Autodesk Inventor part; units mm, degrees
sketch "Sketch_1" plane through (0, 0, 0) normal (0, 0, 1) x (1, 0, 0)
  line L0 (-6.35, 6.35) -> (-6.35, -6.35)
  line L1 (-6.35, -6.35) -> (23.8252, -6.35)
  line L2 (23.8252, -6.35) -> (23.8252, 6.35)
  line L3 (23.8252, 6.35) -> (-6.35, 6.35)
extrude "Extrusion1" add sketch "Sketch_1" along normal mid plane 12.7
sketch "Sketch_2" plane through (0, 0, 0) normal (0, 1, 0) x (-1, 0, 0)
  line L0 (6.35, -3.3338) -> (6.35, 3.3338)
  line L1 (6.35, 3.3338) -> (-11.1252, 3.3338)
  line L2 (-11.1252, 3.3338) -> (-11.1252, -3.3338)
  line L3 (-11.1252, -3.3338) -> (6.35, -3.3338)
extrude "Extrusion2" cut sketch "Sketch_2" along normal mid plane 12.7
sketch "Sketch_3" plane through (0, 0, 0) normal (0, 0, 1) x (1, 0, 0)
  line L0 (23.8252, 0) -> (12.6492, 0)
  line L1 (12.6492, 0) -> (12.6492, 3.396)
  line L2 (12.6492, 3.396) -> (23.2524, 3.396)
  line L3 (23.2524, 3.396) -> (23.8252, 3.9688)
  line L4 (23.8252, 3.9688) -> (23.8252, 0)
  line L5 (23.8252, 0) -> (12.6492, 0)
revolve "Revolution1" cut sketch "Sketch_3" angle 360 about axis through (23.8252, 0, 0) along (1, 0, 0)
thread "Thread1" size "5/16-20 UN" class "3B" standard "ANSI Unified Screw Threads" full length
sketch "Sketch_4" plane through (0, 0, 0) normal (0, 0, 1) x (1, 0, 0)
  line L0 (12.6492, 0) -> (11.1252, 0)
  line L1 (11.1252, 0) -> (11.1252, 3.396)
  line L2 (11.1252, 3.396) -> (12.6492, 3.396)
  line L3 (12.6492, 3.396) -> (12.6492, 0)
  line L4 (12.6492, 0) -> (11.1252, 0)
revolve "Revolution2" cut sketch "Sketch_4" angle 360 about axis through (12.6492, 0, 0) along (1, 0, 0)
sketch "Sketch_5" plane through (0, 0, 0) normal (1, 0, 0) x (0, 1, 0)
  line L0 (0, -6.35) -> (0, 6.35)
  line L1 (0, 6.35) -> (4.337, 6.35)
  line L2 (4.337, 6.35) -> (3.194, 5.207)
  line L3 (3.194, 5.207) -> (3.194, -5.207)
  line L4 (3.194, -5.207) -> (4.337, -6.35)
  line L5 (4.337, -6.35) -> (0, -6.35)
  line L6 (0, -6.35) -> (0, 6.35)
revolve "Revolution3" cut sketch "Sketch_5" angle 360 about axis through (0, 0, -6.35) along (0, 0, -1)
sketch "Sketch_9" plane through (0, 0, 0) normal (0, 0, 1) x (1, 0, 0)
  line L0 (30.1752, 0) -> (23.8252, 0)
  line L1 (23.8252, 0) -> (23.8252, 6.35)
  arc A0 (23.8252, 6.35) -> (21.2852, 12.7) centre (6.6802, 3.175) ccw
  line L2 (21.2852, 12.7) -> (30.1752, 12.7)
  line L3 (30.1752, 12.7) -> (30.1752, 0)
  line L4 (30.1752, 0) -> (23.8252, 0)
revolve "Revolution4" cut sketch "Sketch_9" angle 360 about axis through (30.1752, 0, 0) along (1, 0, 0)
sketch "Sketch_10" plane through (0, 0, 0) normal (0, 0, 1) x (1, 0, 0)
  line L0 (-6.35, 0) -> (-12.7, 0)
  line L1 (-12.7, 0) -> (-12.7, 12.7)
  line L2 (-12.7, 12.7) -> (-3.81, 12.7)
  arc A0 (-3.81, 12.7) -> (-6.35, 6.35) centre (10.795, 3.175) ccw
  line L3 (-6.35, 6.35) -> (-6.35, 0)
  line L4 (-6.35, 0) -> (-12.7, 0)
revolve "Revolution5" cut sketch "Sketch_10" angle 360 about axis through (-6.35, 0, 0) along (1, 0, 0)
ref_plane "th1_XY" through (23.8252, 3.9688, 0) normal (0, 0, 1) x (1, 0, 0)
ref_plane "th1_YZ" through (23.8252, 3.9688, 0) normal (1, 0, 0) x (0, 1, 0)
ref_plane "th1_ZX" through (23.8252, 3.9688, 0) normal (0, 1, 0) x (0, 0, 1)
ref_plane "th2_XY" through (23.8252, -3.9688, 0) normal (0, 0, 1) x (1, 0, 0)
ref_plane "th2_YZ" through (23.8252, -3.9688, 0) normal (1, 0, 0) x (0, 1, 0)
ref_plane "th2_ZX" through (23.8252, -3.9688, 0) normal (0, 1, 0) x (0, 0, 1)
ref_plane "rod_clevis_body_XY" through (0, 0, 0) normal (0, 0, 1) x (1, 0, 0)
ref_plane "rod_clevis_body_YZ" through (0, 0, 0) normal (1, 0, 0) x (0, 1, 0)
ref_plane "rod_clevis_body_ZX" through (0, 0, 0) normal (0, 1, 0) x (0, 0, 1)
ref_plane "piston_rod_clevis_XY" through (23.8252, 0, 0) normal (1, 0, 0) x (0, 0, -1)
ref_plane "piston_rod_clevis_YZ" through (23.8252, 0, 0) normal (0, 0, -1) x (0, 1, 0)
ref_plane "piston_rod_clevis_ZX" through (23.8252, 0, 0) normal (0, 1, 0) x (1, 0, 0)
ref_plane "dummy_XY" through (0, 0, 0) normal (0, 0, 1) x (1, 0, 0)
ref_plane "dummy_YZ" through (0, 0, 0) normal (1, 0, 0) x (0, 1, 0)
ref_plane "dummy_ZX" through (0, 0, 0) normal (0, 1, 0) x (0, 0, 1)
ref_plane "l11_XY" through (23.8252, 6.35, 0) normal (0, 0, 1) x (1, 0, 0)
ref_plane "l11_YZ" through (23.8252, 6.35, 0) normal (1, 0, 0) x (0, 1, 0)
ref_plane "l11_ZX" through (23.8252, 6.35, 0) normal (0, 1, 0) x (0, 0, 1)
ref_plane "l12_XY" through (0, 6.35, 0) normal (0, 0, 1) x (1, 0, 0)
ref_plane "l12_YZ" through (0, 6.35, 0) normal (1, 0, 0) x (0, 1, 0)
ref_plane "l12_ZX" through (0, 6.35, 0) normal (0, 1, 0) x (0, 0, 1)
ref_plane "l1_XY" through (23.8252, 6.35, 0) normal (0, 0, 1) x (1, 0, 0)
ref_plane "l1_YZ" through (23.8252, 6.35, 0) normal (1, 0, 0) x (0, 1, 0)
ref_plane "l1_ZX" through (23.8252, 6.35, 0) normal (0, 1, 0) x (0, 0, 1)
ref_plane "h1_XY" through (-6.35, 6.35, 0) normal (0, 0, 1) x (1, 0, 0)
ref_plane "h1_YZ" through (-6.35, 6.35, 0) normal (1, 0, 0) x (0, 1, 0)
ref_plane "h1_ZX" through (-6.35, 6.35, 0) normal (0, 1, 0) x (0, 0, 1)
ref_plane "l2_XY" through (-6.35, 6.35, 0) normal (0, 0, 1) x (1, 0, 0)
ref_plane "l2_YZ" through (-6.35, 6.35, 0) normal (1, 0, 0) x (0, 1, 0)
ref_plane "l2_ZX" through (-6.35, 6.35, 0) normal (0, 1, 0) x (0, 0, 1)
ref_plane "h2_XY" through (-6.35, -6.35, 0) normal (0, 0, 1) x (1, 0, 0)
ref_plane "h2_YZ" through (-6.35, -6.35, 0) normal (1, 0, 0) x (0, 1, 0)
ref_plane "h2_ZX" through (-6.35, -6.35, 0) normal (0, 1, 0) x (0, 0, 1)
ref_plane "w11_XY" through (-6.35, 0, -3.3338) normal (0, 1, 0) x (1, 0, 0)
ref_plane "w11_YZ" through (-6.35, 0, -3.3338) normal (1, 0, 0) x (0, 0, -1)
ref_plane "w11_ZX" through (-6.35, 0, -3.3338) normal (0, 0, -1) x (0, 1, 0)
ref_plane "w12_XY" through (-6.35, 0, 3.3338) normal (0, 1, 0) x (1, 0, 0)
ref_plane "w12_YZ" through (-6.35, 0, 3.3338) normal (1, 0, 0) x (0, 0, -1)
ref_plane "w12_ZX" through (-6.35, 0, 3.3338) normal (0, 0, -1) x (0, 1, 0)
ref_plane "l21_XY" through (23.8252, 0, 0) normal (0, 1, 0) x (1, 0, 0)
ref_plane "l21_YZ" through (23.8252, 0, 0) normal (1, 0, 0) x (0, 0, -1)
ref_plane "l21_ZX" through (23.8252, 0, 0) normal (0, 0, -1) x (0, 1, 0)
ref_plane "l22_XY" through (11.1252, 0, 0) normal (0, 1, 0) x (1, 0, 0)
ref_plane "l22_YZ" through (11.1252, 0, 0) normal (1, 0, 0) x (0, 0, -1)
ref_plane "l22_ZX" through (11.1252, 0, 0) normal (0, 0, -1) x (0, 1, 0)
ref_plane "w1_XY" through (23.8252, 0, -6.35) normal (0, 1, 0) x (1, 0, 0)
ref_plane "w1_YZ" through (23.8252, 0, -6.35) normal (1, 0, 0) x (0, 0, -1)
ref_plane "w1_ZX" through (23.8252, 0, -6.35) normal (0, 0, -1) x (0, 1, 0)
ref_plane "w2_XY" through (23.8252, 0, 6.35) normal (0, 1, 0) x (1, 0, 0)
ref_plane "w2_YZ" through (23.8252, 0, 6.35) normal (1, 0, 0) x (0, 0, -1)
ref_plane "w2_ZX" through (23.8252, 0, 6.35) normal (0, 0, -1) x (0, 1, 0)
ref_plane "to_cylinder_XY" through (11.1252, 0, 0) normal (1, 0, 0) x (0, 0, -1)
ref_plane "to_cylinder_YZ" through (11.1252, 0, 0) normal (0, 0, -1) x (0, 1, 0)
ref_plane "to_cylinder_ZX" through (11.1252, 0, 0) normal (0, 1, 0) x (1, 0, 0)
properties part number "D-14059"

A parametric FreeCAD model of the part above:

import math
import FreeCAD as App
import Part
import Sketcher
from FreeCAD import Vector
Q = App.Units.Quantity


def add_polygon(sketch, points):
    """Adds a closed chain of lines whose ends are joined by coincident constraints."""
    first, n = sketch.GeometryCount, len(points)
    for a, b in zip(points, points[1:] + points[:1]):
        sketch.addGeometry(Part.LineSegment(App.Vector(*a, 0), App.Vector(*b, 0)), False)
    for i in range(n):
        sketch.addConstraint(Sketcher.Constraint("Coincident", first + i, 2, first + (i + 1) % n, 1))

doc = App.newDocument("Part")
body = doc.addObject("PartDesign::Body", "Body")

# Sketch on XY plane
sketch1 = doc.addObject("Sketcher::SketchObject", "Sketch")
body.addObject(sketch1)
sketch1.AttachmentSupport = (doc.XY_Plane, [""])
sketch1.MapMode = "FlatFace"
add_polygon(sketch1, [(24, 6), (-6, 6), (-6, -6), (24, -6)])  # lines 0-3
sketch1.addConstraint(Sketcher.Constraint("Horizontal", 0))
sketch1.addConstraint(Sketcher.Constraint("Vertical", 1))
sketch1.addConstraint(Sketcher.Constraint("Horizontal", 2))
sketch1.addConstraint(Sketcher.Constraint("Vertical", 3))
sketch1.addConstraint(Sketcher.Constraint("DistanceY", 1, 2, 1, 1, Q("0.5 in")))
sketch1.addConstraint(Sketcher.Constraint("DistanceX", 0, 2, 0, 1, Q("1.188 in")))
sketch1.addConstraint(Sketcher.Constraint("DistanceX", 0, 2, -1, 1, Q("0.25 in")))
sketch1.addConstraint(Sketcher.Constraint("DistanceY", -1, 1, 0, 2, Q("0.25 in")))
pad1 = doc.addObject("PartDesign::Pad", "Pad")
body.addObject(pad1)
pad1.Profile = sketch1
pad1.Length = Q("0.5 in")
pad1.Midplane = True

# Sketch on XZ plane
sketch2 = doc.addObject("Sketcher::SketchObject", "Sketch001")
body.addObject(sketch2)
sketch2.AttachmentSupport = (doc.XZ_Plane, [""])
sketch2.MapMode = "FlatFace"
add_polygon(sketch2, [(11, -3), (-6, -3), (-6, 3), (11, 3)])  # lines 0-3
sketch2.addConstraint(Sketcher.Constraint("Horizontal", 0))
sketch2.addConstraint(Sketcher.Constraint("Vertical", 1))
sketch2.addConstraint(Sketcher.Constraint("Horizontal", 2))
sketch2.addConstraint(Sketcher.Constraint("Vertical", 3))
sketch2.addConstraint(Sketcher.Constraint("DistanceX", 0, 2, 0, 1, Q("0.688 in")))
sketch2.addConstraint(Sketcher.Constraint("DistanceX", 0, 2, -1, 1, Q("0.25 in")))
sketch2.addConstraint(Sketcher.Constraint("DistanceY", 1, 1, 1, 2, Q("0.2625 in")))
sketch2.addConstraint(Sketcher.Constraint("DistanceY", 0, 2, -1, 1, Q("3.3338 mm")))
pocket1 = doc.addObject("PartDesign::Pocket", "Pocket")
body.addObject(pocket1)
pocket1.Profile = sketch2
pocket1.Length = Q("0.5 in")
pocket1.Midplane = True

# Sketch on XY plane
sketch3 = doc.addObject("Sketcher::SketchObject", "Sketch002")
body.addObject(sketch3)
sketch3.AttachmentSupport = (doc.XY_Plane, [""])
sketch3.MapMode = "FlatFace"
add_polygon(sketch3, [(12.6, 0), (23.8, 0), (23.8, 4), (23.3, 3.4), (12.6, 3.4)])  # lines 0-4
sketch3.addConstraint(Sketcher.Constraint("Horizontal", 0))
sketch3.addConstraint(Sketcher.Constraint("Vertical", 1))
sketch3.addConstraint(Sketcher.Constraint("Horizontal", 3))
sketch3.addConstraint(Sketcher.Constraint("Vertical", 4))
sketch3.addConstraint(Sketcher.Constraint("PointOnObject", 0, 2, -1))
sketch3.addConstraint(Sketcher.Constraint("Angle", 2, Q("-135 deg")))
sketch3.addConstraint(Sketcher.Constraint("DistanceX", 0, 1, 0, 2, Q("0.44 in")))
sketch3.addConstraint(Sketcher.Constraint("DistanceY", 1, 1, 1, 2, Q("0.156252 in")))
sketch3.addConstraint(Sketcher.Constraint("DistanceY", 4, 2, 4, 1, Q("0.1337 in")))
sketch3.addConstraint(Sketcher.Constraint("DistanceX", -1, 1, 0, 2, Q("0.938 in")))
groove = doc.addObject("PartDesign::Groove", "Groove")
body.addObject(groove)
groove.Profile = sketch3
groove.ReferenceAxis = (sketch3, ["H_Axis"])
groove.Angle = 360

# Sketch on XY plane
sketch4 = doc.addObject("Sketcher::SketchObject", "Sketch003")
body.addObject(sketch4)
sketch4.AttachmentSupport = (doc.XY_Plane, [""])
sketch4.MapMode = "FlatFace"
add_polygon(sketch4, [(11.1, 0), (12.6, 0), (12.6, 3.4), (11.1, 3.4)])  # lines 0-3
sketch4.addConstraint(Sketcher.Constraint("Horizontal", 0))
sketch4.addConstraint(Sketcher.Constraint("Vertical", 1))
sketch4.addConstraint(Sketcher.Constraint("Horizontal", 2))
sketch4.addConstraint(Sketcher.Constraint("Vertical", 3))
sketch4.addConstraint(Sketcher.Constraint("PointOnObject", 0, 2, -1))
sketch4.addConstraint(Sketcher.Constraint("DistanceX", 0, 1, 0, 2, Q("0.06 in")))
sketch4.addConstraint(Sketcher.Constraint("DistanceY", 1, 1, 1, 2, Q("0.1337 in")))
sketch4.addConstraint(Sketcher.Constraint("DistanceX", -1, 1, 0, 2, Q("0.498 in")))
groove2 = doc.addObject("PartDesign::Groove", "Groove001")
body.addObject(groove2)
groove2.Profile = sketch4
groove2.ReferenceAxis = (sketch4, ["H_Axis"])
groove2.Angle = 360

# Sketch on YZ plane
sketch5 = doc.addObject("Sketcher::SketchObject", "Sketch004")
body.addObject(sketch5)
sketch5.AttachmentSupport = (doc.YZ_Plane, [""])
sketch5.MapMode = "FlatFace"
add_polygon(sketch5, [(0, 6.3), (0, -6.3), (4.3, -6.3), (3.2, -5.2), (3.2, 5.2), (4.3, 6.3)])  # lines 0-5
sketch5.addConstraint(Sketcher.Constraint("Vertical", 0))
sketch5.addConstraint(Sketcher.Constraint("Horizontal", 1))
sketch5.addConstraint(Sketcher.Constraint("Vertical", 3))
sketch5.addConstraint(Sketcher.Constraint("Horizontal", 5))
sketch5.addConstraint(Sketcher.Constraint("Symmetric", 0, 2, 5, 2, -1, 1))
sketch5.addConstraint(Sketcher.Constraint("Perpendicular", 2, 4))
sketch5.addConstraint(Sketcher.Constraint("Vertical", 1, 2, 4, 2))
sketch5.addConstraint(Sketcher.Constraint("Equal", 2, 4))
sketch5.addConstraint(Sketcher.Constraint("DistanceY", 0, 2, 0, 1, Q("0.5 in")))
sketch5.addConstraint(Sketcher.Constraint("DistanceY", 3, 1, 3, 2, Q("0.41 in")))
sketch5.addConstraint(Sketcher.Constraint("DistanceX", 1, 1, 1, 2, Q("4.337 mm")))
groove3 = doc.addObject("PartDesign::Groove", "Groove002")
body.addObject(groove3)
groove3.Profile = sketch5
groove3.ReferenceAxis = (sketch5, ["V_Axis"])
groove3.Angle = 360

# Sketch on XY plane
sketch6 = doc.addObject("Sketcher::SketchObject", "Sketch005")
body.addObject(sketch6)
sketch6.AttachmentSupport = (doc.XY_Plane, [""])
sketch6.MapMode = "FlatFace"
sketch6.addGeometry(Part.LineSegment(Vector(24, 0, 0), Vector(30, 0, 0)), False)
sketch6.addGeometry(Part.LineSegment(Vector(30, 0, 0), Vector(30, 13, 0)), False)
sketch6.addGeometry(Part.LineSegment(Vector(30, 13, 0), Vector(21, 13, 0)), False)
sketch6.addGeometry(Part.ArcOfCircle(Part.Circle(Vector(7, 3, 0), Vector(0, 0, 1), 17), math.radians(10), math.radians(33)), False)
sketch6.addGeometry(Part.LineSegment(Vector(24, 6, 0), Vector(24, 0, 0)), False)
sketch6.addConstraint(Sketcher.Constraint("Coincident", 0, 2, 1, 1))
sketch6.addConstraint(Sketcher.Constraint("Coincident", 1, 2, 2, 1))
sketch6.addConstraint(Sketcher.Constraint("Coincident", 2, 2, 3, 2))
sketch6.addConstraint(Sketcher.Constraint("Coincident", 3, 1, 4, 1))
sketch6.addConstraint(Sketcher.Constraint("Coincident", 4, 2, 0, 1))
sketch6.addConstraint(Sketcher.Constraint("Horizontal", 0))
sketch6.addConstraint(Sketcher.Constraint("Vertical", 1))
sketch6.addConstraint(Sketcher.Constraint("Horizontal", 2))
sketch6.addConstraint(Sketcher.Constraint("Vertical", 4))
sketch6.addConstraint(Sketcher.Constraint("PointOnObject", 0, 2, -1))
sketch6.addConstraint(Sketcher.Constraint("Equal", 0, 4))
sketch6.addConstraint(Sketcher.Constraint("DistanceY", 1, 1, 1, 2, Q("0.5 in")))
sketch6.addConstraint(Sketcher.Constraint("DistanceX", 0, 1, 0, 2, Q("0.25 in")))
sketch6.addConstraint(Sketcher.Constraint("DistanceX", 2, 2, 2, 1, Q("0.35 in")))
sketch6.addConstraint(Sketcher.Constraint("Radius", 3, Q("17.4365 mm")))
sketch6.addConstraint(Sketcher.Constraint("DistanceX", -1, 1, 3, 3, Q("0.263 in")))
groove4 = doc.addObject("PartDesign::Groove", "Groove003")
body.addObject(groove4)
groove4.Profile = sketch6
groove4.ReferenceAxis = (sketch6, ["H_Axis"])
groove4.Angle = 360

# Sketch on XY plane
sketch7 = doc.addObject("Sketcher::SketchObject", "Sketch006")
body.addObject(sketch7)
sketch7.AttachmentSupport = (doc.XY_Plane, [""])
sketch7.MapMode = "FlatFace"
sketch7.addGeometry(Part.LineSegment(Vector(-13, 0, 0), Vector(-6, 0, 0)), False)
sketch7.addGeometry(Part.LineSegment(Vector(-6, 0, 0), Vector(-6, 6, 0)), False)
sketch7.addGeometry(Part.ArcOfCircle(Part.Circle(Vector(11, 3, 0), Vector(0, 0, 1), 17), math.radians(147), math.radians(170)), False)
sketch7.addGeometry(Part.LineSegment(Vector(-4, 13, 0), Vector(-13, 13, 0)), False)
sketch7.addGeometry(Part.LineSegment(Vector(-13, 13, 0), Vector(-13, 0, 0)), False)
sketch7.addConstraint(Sketcher.Constraint("Coincident", 0, 2, 1, 1))
sketch7.addConstraint(Sketcher.Constraint("Coincident", 1, 2, 2, 2))
sketch7.addConstraint(Sketcher.Constraint("Coincident", 2, 1, 3, 1))
sketch7.addConstraint(Sketcher.Constraint("Coincident", 3, 2, 4, 1))
sketch7.addConstraint(Sketcher.Constraint("Coincident", 4, 2, 0, 1))
sketch7.addConstraint(Sketcher.Constraint("Horizontal", 0))
sketch7.addConstraint(Sketcher.Constraint("Vertical", 1))
sketch7.addConstraint(Sketcher.Constraint("Horizontal", 3))
sketch7.addConstraint(Sketcher.Constraint("Vertical", 4))
sketch7.addConstraint(Sketcher.Constraint("PointOnObject", 0, 2, -1))
sketch7.addConstraint(Sketcher.Constraint("Equal", 0, 1))
sketch7.addConstraint(Sketcher.Constraint("DistanceY", 4, 2, 4, 1, Q("0.5 in")))
sketch7.addConstraint(Sketcher.Constraint("DistanceX", 0, 1, 0, 2, Q("0.25 in")))
sketch7.addConstraint(Sketcher.Constraint("DistanceX", 3, 2, 3, 1, Q("0.35 in")))
sketch7.addConstraint(Sketcher.Constraint("DistanceX", 3, 2, -1, 1, Q("0.5 in")))
sketch7.addConstraint(Sketcher.Constraint("Radius", 2, Q("17.4365 mm")))
groove5 = doc.addObject("PartDesign::Groove", "Groove004")
body.addObject(groove5)
groove5.Profile = sketch7
groove5.ReferenceAxis = (sketch7, ["H_Axis"])
groove5.Angle = 360

doc.recompute()
